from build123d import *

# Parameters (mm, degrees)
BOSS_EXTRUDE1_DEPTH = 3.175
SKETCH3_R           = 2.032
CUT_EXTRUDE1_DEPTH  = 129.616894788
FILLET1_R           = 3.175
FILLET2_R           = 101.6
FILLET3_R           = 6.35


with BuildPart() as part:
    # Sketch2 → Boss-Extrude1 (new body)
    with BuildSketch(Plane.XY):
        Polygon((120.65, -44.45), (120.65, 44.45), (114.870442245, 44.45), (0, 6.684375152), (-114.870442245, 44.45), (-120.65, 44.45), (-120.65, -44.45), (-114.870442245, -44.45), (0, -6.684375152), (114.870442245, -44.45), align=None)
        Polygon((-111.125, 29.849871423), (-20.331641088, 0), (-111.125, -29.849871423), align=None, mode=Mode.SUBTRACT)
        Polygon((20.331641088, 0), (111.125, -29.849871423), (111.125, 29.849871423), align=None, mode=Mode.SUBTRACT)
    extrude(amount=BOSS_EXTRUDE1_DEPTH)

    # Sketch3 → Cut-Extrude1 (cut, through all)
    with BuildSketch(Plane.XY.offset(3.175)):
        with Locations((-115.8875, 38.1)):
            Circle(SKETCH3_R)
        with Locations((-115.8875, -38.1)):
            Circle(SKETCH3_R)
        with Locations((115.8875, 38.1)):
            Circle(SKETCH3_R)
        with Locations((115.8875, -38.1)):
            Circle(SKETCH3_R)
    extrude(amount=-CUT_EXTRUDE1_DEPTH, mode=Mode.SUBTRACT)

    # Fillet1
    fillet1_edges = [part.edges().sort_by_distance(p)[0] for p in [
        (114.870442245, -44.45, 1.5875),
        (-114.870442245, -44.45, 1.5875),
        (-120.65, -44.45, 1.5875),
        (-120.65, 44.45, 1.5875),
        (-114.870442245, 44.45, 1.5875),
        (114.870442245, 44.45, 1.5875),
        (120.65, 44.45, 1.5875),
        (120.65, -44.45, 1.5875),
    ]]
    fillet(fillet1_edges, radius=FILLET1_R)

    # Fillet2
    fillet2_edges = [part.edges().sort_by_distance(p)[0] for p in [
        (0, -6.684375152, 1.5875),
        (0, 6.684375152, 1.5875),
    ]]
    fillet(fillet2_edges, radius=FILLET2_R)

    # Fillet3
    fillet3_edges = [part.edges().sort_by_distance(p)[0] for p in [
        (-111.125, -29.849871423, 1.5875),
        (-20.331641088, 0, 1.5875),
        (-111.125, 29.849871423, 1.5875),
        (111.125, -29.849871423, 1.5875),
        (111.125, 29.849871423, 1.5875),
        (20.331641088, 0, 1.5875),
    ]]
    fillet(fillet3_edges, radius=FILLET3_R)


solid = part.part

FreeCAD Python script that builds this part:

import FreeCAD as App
import Part
import Sketcher
from FreeCAD import Vector
Q = App.Units.Quantity


def edges_at(feature, points):
    """Names of the edges that pass closest to the given points."""
    edges = feature.Shape.Edges
    near = lambda p: min(range(len(edges)), key=lambda i: edges[i].distToShape(Part.Vertex(*p))[0])
    return sorted({f"Edge{near(p) + 1}" for p in points})


def add_polygon(sketch, points):
    """Adds a closed chain of lines whose ends are joined by coincident constraints."""
    first, n = sketch.GeometryCount, len(points)
    for a, b in zip(points, points[1:] + points[:1]):
        sketch.addGeometry(Part.LineSegment(App.Vector(*a, 0), App.Vector(*b, 0)), False)
    for i in range(n):
        sketch.addConstraint(Sketcher.Constraint("Coincident", first + i, 2, first + (i + 1) % n, 1))

doc = App.newDocument("Part")
body = doc.addObject("PartDesign::Body", "Body")

# Sketch on XY plane
sketch1 = doc.addObject("Sketcher::SketchObject", "Sketch")
body.addObject(sketch1)
sketch1.AttachmentSupport = (doc.XY_Plane, [""])
sketch1.MapMode = "FlatFace"
add_polygon(sketch1, [(121, -44), (121, 44), (115, 44), (0, 7), (-115, 44), (-121, 44), (-121, -44), (-115, -44), (0, -7), (115, -44)])  # lines 0-9
add_polygon(sketch1, [(-111, -30), (-111, 30), (-20, 0)])  # lines 10-12
add_polygon(sketch1, [(111, -30), (20, 0), (111, 30)])  # lines 13-15
sketch1.addConstraint(Sketcher.Constraint("Vertical", 0))
sketch1.addConstraint(Sketcher.Constraint("Horizontal", 1))
sketch1.addConstraint(Sketcher.Constraint("Horizontal", 4))
sketch1.addConstraint(Sketcher.Constraint("Vertical", 5))
sketch1.addConstraint(Sketcher.Constraint("Horizontal", 6))
sketch1.addConstraint(Sketcher.Constraint("Horizontal", 9))
sketch1.addConstraint(Sketcher.Constraint("Vertical", 10))
sketch1.addConstraint(Sketcher.Constraint("Vertical", 15))
sketch1.addConstraint(Sketcher.Constraint("Symmetric", 0, 2, 5, 2, -1, 1))
sketch1.addConstraint(Sketcher.Constraint("Symmetric", 2, 2, 7, 2, -1, 1))
sketch1.addConstraint(Sketcher.Constraint("Symmetric", 3, 2, 8, 2, -1, 1))
sketch1.addConstraint(Sketcher.Constraint("Symmetric", 11, 2, 13, 2, -1, 1))
sketch1.addConstraint(Sketcher.Constraint("Symmetric", 12, 2, 14, 2, -1, 1))
sketch1.addConstraint(Sketcher.Constraint("Symmetric", 1, 2, 3, 2, -2))
sketch1.addConstraint(Sketcher.Constraint("PointOnObject", 2, 2, -2))
sketch1.addConstraint(Sketcher.Constraint("PointOnObject", 11, 2, -1))
sketch1.addConstraint(Sketcher.Constraint("Parallel", 2, 7))
sketch1.addConstraint(Sketcher.Constraint("Parallel", 8, 11))
sketch1.addConstraint(Sketcher.Constraint("Parallel", 7, 12))
sketch1.addConstraint(Sketcher.Constraint("Parallel", 11, 13))
sketch1.addConstraint(Sketcher.Constraint("DistanceY", 0, 1, 0, 2, Q("3.5 in")))
sketch1.addConstraint(Sketcher.Constraint("DistanceX", 4, 2, 0, 2, Q("9.5 in")))
sketch1.addConstraint(Sketcher.Constraint("DistanceX", 10, 2, -1, 1, Q("4.375 in")))
sketch1.addConstraint(Sketcher.Constraint("DistanceX", 3, 2, 11, 2, Q("3.722 in")))
sketch1.addConstraint(Sketcher.Constraint("Distance", 11, Q("95.574311 mm")))
sketch1.addConstraint(Sketcher.Constraint("DistanceX", 1, 2, 1, 1, Q("5.779558 mm")))
pad1 = doc.addObject("PartDesign::Pad", "Pad")
body.addObject(pad1)
pad1.Profile = sketch1
pad1.Length = Q("0.125 in")

# Sketch on XY plane
sketch2 = doc.addObject("Sketcher::SketchObject", "Sketch001")
body.addObject(sketch2)
sketch2.AttachmentSupport = (doc.XY_Plane, [""])
sketch2.MapMode = "FlatFace"
sketch2.AttachmentOffset = App.Placement(Vector(0, 0, 0.125 * 25.4), App.Rotation())
sketch2.addGeometry(Part.Circle(Vector(-115.9, 38.1, 0), Vector(0, 0, 1), 2), False)
sketch2.addGeometry(Part.Circle(Vector(-115.9, -38.1, 0), Vector(0, 0, 1), 2), False)
sketch2.addGeometry(Part.Circle(Vector(115.9, 38.1, 0), Vector(0, 0, 1), 2), False)
sketch2.addGeometry(Part.Circle(Vector(115.9, -38.1, 0), Vector(0, 0, 1), 2), False)
sketch2.addConstraint(Sketcher.Constraint("Equal", 0, 1))
sketch2.addConstraint(Sketcher.Constraint("Equal", 1, 2))
sketch2.addConstraint(Sketcher.Constraint("Equal", 2, 3))
sketch2.addConstraint(Sketcher.Constraint("Symmetric", 1, 3, 2, 3, -1, 1))
sketch2.addConstraint(Sketcher.Constraint("Symmetric", 0, 3, 3, 3, -1, 1))
sketch2.addConstraint(Sketcher.Constraint("Symmetric", 0, 3, 2, 3, -2))
sketch2.addConstraint(Sketcher.Constraint("Diameter", 0, Q("0.16 in")))
sketch2.addConstraint(Sketcher.Constraint("DistanceY", 1, 3, 0, 3, Q("3 in")))
sketch2.addConstraint(Sketcher.Constraint("DistanceX", 0, 3, -1, 1, Q("4.5625 in")))
pocket1 = doc.addObject("PartDesign::Pocket", "Pocket")
body.addObject(pocket1)
pocket1.Profile = sketch2
pocket1.Type = "ThroughAll"
doc.recompute()

fillet = doc.addObject("PartDesign::Fillet", "Fillet")
body.addObject(fillet)
fillet.Base = (pocket1, edges_at(pocket1, [
    (114.87, -44.45, 1.587),
    (-114.87, -44.45, 1.587),
    (-120.65, -44.45, 1.587),
    (-120.65, 44.45, 1.587),
    (-114.87, 44.45, 1.587),
    (114.87, 44.45, 1.587),
    (120.65, 44.45, 1.587),
    (120.65, -44.45, 1.587),
]))
fillet.Radius = Q("0.125 in")
doc.recompute()

fillet2 = doc.addObject("PartDesign::Fillet", "Fillet001")
body.addObject(fillet2)
fillet2.Base = (fillet, edges_at(fillet, [(0, -6.684, 1.587), (0, 6.684, 1.587)]))
fillet2.Radius = Q("4 in")
doc.recompute()

fillet3 = doc.addObject("PartDesign::Fillet", "Fillet002")
body.addObject(fillet3)
fillet3.Base = (fillet2, edges_at(fillet2, [
    (-111.125, -29.85, 1.587),
    (-20.332, 0, 1.587),
    (-111.125, 29.85, 1.587),
    (111.125, -29.85, 1.587),
    (111.125, 29.85, 1.587),
    (20.332, 0, 1.587),
]))
fillet3.Radius = Q("0.25 in")

doc.recompute()
